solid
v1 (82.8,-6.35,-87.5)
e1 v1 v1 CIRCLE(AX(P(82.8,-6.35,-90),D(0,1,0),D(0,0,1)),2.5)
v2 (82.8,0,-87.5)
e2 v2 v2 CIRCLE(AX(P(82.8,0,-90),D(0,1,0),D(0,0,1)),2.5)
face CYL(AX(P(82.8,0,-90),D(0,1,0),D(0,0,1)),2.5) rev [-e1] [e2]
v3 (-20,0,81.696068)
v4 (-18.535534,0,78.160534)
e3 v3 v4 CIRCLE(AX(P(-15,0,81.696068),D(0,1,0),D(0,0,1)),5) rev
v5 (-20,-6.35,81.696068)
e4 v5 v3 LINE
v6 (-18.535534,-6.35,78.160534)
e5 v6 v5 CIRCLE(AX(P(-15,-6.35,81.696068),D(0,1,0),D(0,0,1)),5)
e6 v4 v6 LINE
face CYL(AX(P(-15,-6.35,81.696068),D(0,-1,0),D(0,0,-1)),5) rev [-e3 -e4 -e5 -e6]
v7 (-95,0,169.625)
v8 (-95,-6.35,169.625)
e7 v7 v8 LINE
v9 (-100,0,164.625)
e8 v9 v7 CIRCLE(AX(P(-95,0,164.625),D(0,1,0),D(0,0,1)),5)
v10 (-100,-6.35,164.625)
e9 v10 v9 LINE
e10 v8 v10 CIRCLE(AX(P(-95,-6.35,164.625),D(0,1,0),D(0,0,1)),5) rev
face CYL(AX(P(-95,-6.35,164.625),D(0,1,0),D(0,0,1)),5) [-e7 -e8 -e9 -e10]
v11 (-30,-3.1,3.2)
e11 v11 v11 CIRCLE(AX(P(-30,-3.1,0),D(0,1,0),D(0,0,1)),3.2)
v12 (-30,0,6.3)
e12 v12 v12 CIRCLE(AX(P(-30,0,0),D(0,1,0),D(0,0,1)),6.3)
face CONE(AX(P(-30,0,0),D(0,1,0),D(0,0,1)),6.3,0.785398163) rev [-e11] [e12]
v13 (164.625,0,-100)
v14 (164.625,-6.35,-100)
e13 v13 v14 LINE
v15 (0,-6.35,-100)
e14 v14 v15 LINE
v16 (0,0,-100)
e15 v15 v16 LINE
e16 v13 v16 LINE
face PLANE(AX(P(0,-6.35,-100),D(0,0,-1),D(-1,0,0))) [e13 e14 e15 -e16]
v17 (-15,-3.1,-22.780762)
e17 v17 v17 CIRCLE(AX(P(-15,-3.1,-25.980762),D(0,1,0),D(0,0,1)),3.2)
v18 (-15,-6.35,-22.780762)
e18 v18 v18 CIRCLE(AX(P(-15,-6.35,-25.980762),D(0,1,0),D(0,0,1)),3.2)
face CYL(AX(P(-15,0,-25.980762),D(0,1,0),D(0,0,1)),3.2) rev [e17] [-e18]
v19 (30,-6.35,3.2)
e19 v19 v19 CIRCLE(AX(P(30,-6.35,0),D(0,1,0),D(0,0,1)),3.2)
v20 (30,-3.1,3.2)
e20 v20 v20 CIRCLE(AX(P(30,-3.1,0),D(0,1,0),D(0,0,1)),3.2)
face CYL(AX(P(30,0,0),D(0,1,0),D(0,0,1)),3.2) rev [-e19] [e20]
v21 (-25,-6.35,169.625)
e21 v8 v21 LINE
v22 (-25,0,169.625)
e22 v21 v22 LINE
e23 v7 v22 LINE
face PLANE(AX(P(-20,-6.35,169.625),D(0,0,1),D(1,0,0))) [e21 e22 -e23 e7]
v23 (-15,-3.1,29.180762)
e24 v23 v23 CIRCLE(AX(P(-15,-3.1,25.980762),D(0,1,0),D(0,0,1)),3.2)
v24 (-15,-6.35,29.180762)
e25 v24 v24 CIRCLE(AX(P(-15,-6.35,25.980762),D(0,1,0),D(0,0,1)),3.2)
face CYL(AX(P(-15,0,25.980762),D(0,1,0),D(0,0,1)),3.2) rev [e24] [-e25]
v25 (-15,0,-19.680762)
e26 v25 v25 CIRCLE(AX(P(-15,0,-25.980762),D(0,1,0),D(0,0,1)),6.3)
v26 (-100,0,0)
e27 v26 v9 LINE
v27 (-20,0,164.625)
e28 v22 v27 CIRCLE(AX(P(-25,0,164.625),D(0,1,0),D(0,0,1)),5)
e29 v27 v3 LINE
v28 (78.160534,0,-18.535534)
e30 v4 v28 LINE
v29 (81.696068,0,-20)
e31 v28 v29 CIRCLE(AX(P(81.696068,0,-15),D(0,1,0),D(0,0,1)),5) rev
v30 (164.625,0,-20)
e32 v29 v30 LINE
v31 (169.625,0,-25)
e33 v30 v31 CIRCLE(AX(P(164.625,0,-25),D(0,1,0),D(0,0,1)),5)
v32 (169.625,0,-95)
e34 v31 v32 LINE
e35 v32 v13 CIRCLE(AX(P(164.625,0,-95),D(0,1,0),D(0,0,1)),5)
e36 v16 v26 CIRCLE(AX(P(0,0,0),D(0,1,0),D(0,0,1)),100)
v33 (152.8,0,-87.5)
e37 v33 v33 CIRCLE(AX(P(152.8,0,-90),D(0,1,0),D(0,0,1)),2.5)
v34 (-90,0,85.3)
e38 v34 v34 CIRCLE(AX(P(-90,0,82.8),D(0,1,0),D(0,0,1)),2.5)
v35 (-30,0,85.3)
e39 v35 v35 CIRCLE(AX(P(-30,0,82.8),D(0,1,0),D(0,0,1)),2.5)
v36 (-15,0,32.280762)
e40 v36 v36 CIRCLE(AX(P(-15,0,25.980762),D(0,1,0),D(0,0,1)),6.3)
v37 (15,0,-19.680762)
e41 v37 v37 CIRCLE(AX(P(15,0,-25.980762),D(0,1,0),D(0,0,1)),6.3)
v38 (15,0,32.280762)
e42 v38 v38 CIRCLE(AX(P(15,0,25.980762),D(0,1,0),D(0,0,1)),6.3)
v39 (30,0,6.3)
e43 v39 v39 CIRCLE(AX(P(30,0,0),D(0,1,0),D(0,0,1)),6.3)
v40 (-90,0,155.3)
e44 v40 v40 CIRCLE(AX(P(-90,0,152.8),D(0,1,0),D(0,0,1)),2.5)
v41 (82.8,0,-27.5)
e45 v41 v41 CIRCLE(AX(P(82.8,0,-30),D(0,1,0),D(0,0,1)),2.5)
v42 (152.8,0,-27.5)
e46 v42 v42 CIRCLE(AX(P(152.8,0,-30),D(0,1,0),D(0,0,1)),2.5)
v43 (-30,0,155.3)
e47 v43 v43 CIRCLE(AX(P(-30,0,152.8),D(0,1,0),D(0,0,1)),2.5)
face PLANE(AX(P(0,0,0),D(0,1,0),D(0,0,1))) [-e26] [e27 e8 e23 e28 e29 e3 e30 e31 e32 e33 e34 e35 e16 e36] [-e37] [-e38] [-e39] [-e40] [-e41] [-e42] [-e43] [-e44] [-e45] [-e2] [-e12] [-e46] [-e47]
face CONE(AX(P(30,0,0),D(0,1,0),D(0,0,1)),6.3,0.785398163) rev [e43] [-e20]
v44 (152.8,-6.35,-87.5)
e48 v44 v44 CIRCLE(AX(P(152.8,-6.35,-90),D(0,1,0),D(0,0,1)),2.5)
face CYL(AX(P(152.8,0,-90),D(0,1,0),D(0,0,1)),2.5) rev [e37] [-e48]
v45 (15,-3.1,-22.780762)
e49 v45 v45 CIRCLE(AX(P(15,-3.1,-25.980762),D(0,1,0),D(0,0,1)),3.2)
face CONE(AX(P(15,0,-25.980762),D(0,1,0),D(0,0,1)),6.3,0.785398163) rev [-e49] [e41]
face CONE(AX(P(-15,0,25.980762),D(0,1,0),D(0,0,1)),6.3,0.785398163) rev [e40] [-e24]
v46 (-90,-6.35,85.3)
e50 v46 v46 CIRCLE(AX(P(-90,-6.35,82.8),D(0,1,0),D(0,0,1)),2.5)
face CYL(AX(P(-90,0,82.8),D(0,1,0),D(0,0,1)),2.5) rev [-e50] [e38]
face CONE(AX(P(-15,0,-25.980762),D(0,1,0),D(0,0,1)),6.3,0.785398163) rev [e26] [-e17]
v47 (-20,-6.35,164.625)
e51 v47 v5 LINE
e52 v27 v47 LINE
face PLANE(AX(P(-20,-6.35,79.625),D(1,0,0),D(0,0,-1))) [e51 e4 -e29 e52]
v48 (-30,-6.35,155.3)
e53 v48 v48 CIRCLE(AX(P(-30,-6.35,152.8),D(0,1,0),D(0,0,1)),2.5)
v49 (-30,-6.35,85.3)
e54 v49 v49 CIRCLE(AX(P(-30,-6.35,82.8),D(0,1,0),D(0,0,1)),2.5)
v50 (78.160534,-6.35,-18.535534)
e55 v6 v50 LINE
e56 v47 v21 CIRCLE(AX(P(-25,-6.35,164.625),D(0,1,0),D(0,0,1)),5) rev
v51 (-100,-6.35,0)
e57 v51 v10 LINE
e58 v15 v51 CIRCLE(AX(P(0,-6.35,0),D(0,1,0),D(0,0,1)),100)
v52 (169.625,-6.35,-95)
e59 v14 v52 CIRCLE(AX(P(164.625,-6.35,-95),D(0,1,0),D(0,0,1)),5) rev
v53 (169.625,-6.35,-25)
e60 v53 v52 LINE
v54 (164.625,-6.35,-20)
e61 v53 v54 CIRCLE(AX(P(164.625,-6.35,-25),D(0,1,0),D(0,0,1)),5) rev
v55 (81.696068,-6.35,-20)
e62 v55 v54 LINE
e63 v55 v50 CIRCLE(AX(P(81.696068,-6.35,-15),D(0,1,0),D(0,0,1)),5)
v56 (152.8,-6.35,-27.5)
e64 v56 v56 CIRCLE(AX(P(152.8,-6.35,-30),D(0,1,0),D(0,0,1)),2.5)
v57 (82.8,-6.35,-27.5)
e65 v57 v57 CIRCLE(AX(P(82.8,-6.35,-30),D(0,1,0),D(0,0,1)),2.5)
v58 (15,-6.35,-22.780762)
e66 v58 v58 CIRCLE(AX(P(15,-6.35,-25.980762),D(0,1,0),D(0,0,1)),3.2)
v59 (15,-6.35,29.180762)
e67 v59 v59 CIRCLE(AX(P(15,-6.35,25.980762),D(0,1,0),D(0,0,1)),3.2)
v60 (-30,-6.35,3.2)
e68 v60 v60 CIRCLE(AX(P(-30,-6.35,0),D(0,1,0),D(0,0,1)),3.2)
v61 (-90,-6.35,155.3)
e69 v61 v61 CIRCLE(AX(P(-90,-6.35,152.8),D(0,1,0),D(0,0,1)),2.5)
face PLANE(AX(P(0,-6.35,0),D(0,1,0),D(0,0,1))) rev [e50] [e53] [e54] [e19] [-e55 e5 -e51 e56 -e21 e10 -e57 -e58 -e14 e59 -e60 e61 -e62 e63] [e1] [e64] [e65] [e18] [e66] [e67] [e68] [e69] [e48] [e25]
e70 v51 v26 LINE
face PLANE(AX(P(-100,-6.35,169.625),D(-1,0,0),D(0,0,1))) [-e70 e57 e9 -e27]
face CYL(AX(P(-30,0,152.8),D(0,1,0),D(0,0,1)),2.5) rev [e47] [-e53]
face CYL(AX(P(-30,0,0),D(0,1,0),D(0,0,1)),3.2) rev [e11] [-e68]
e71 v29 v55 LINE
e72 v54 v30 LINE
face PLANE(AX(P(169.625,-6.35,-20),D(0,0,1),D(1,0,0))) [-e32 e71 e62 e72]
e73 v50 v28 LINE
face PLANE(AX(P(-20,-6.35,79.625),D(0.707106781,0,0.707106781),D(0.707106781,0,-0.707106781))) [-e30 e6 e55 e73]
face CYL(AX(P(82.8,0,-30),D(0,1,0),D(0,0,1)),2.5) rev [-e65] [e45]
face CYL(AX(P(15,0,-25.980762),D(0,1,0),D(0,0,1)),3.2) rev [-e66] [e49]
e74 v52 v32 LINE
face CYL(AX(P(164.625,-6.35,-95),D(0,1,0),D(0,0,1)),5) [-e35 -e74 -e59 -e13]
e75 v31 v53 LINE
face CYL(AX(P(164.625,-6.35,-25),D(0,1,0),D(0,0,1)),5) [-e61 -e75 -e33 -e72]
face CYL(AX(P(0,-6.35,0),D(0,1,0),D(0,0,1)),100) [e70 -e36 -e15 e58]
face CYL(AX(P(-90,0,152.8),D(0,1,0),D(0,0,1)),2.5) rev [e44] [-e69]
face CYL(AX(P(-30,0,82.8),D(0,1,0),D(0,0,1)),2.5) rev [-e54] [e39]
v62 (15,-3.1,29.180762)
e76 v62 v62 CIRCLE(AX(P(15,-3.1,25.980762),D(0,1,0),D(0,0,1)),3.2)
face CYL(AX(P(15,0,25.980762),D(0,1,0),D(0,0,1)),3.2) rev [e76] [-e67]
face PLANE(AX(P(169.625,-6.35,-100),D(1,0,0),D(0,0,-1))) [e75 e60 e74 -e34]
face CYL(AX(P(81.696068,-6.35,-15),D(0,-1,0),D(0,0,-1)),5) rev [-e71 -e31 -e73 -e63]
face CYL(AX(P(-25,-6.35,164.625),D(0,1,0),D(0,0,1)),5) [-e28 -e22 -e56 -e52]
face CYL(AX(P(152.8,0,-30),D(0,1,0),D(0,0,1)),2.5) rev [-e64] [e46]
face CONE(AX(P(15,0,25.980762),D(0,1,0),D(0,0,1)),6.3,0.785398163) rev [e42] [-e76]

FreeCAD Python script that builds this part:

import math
import FreeCAD as App
import Part
import Sketcher
Q = App.Units.Quantity


def edges_at(feature, points):
    """Names of the edges that pass closest to the given points."""
    edges = feature.Shape.Edges
    near = lambda p: min(range(len(edges)), key=lambda i: edges[i].distToShape(Part.Vertex(*p))[0])
    return sorted({f"Edge{near(p) + 1}" for p in points})

doc = App.newDocument("Part")
params = doc.addObject("Spreadsheet::Sheet", "Params")
for row, (alias, value) in enumerate([
    ("sketch1_radius", "100 mm"),
    ("sketch1_width", "80 mm"),
    ("sketch1_width2", "90 mm"),
    ("pad1_length", "6.35 mm"),
    ("fillet_radius", "5 mm"),
    ("sketch2_diameter", "5 mm"),
    ("hole_diameter", "5 mm"),
    ("sketch3_diameter", "6.4 mm"),
    ("hole2_diameter", "6.4 mm"),
    ("hole2_csink_diameter", "12.6 mm"),
], start=1):
    params.set(f"A{row}", alias)
    params.set(f"B{row}", "=" + value)
    params.setAlias(f"B{row}", alias)

body = doc.addObject("PartDesign::Body", "Body")

sketch1 = body.newObject("Sketcher::SketchObject", "Sketch")
sketch1.AttachmentSupport = (doc.getObject("XZ_Plane"), [""])
sketch1.MapMode = "FlatFace"
sketch1.addGeometry([
    Part.LineSegment(App.Vector(170, -100, 0), App.Vector(0, -100, 0)),
    Part.ArcOfCircle(Part.Circle(App.Vector(0, 0, 0), App.Vector(0, 0, 1), 100), math.radians(180), math.radians(270)),
    Part.LineSegment(App.Vector(-100, 0, 0), App.Vector(-100, 170, 0)),
    Part.LineSegment(App.Vector(-100, 170, 0), App.Vector(-20, 170, 0)),
    Part.LineSegment(App.Vector(-20, 170, 0), App.Vector(-20, 80, 0)),
    Part.LineSegment(App.Vector(-20, 80, 0), App.Vector(80, -20, 0)),
    Part.LineSegment(App.Vector(80, -20, 0), App.Vector(170, -20, 0)),
    Part.LineSegment(App.Vector(170, -20, 0), App.Vector(170, -100, 0)),
], False)
sketch1.addConstraint([
    Sketcher.Constraint("Tangent", 0, 2, 1, 2),
    Sketcher.Constraint("Tangent", 1, 1, 2, 1),
    Sketcher.Constraint("Coincident", 2, 2, 3, 1),
    Sketcher.Constraint("Coincident", 3, 2, 4, 1),
    Sketcher.Constraint("Coincident", 4, 2, 5, 1),
    Sketcher.Constraint("Coincident", 5, 2, 6, 1),
    Sketcher.Constraint("Coincident", 6, 2, 7, 1),
    Sketcher.Constraint("Coincident", 7, 2, 0, 1),
    Sketcher.Constraint("Horizontal", 0),
    Sketcher.Constraint("Vertical", 2),
    Sketcher.Constraint("Horizontal", 3),
    Sketcher.Constraint("Vertical", 4),
    Sketcher.Constraint("Horizontal", 6),
    Sketcher.Constraint("Vertical", 7),
    Sketcher.Constraint("Coincident", 1, 3, -1, 1),
    Sketcher.Constraint("Equal", 0, 2),
    Sketcher.Constraint("Equal", 6, 4),
    Sketcher.Constraint("Equal", 3, 7),
    Sketcher.Constraint("Radius", 1, Q("100 mm")),
    Sketcher.Constraint("DistanceX", 3, 1, 3, 2, Q("80 mm")),
    Sketcher.Constraint("DistanceX", 6, 1, 6, 2, Q("90 mm")),
    Sketcher.Constraint("DistanceX", 0, 2, 0, 1, Q("169.625 mm")),
])
sketch1.setExpression("Constraints[18]", "Params.sketch1_radius")
sketch1.setExpression("Constraints[19]", "Params.sketch1_width")
sketch1.setExpression("Constraints[20]", "Params.sketch1_width2")
pad1 = body.newObject("PartDesign::Pad", "Pad")
pad1.Profile = sketch1
pad1.setExpression("Length", "Params.pad1_length")
doc.recompute()

fillet = body.newObject("PartDesign::Fillet", "Fillet")
fillet.Base = (pad1, edges_at(pad1, [
    (169.625, -3.175, -20),
    (79.625, -3.175, -20),
    (-20, -3.175, 79.625),
    (-20, -3.175, 169.625),
    (-100, -3.175, 169.625),
    (169.625, -3.175, -100),
]))
fillet.setExpression("Radius", "Params.fillet_radius")

sketch2 = body.newObject("Sketcher::SketchObject", "Sketch001")
sketch2.AttachmentSupport = (doc.getObject("XZ_Plane"), [""])
sketch2.MapMode = "FlatFace"
sketch2.addGeometry([
    Part.Circle(App.Vector(82.8, -90, 0), App.Vector(0, 0, 1), 2.5),
    Part.Circle(App.Vector(152.8, -90, 0), App.Vector(0, 0, 1), 2.5),
    Part.Circle(App.Vector(152.8, -30, 0), App.Vector(0, 0, 1), 2.5),
    Part.Circle(App.Vector(-90, 82.8, 0), App.Vector(0, 0, 1), 2.5),
    Part.Circle(App.Vector(-30, 82.8, 0), App.Vector(0, 0, 1), 2.5),
    Part.Circle(App.Vector(-30, 152.8, 0), App.Vector(0, 0, 1), 2.5),
    Part.Circle(App.Vector(-90, 152.8, 0), App.Vector(0, 0, 1), 2.5),
    Part.Circle(App.Vector(82.8, -30, 0), App.Vector(0, 0, 1), 2.5),
], False)
sketch2.addConstraint([
    Sketcher.Constraint("Equal", 0, 1),
    Sketcher.Constraint("Equal", 1, 2),
    Sketcher.Constraint("Equal", 2, 3),
    Sketcher.Constraint("Equal", 3, 4),
    Sketcher.Constraint("Equal", 4, 5),
    Sketcher.Constraint("Equal", 5, 6),
    Sketcher.Constraint("Equal", 6, 7),
    Sketcher.Constraint("Horizontal", 0, 3, 1, 3),
    Sketcher.Constraint("Horizontal", 3, 3, 4, 3),
    Sketcher.Constraint("Horizontal", 5, 3, 6, 3),
    Sketcher.Constraint("Horizontal", 2, 3, 7, 3),
    Sketcher.Constraint("Vertical", 1, 3, 2, 3),
    Sketcher.Constraint("Vertical", 4, 3, 5, 3),
    Sketcher.Constraint("Vertical", 3, 3, 6, 3),
    Sketcher.Constraint("Vertical", 0, 3, 7, 3),
    Sketcher.Constraint("Diameter", 0, Q("5 mm")),
    Sketcher.Constraint("DistanceY", 0, 3, -1, 1, Q("90 mm")),
    Sketcher.Constraint("DistanceY", 2, 3, -1, 1, Q("30 mm")),
    Sketcher.Constraint("DistanceX", 3, 3, -1, 1, Q("90 mm")),
    Sketcher.Constraint("DistanceX", 4, 3, -1, 1, Q("30 mm")),
    Sketcher.Constraint("DistanceX", 0, 3, 1, 3, Q("70 mm")),
    Sketcher.Constraint("DistanceY", 4, 3, 5, 3, Q("70 mm")),
    Sketcher.Constraint("DistanceX", -1, 1, 0, 3, Q("82.8 mm")),
    Sketcher.Constraint("DistanceY", -1, 1, 3, 3, Q("82.8 mm")),
])
sketch2.setExpression("Constraints[15]", "Params.sketch2_diameter")
doc.recompute()
hole = body.newObject("PartDesign::Hole", "Hole")
hole.Profile = sketch2
hole.ThreadType = "None"
hole.setExpression("Diameter", "Params.hole_diameter")
hole.DepthType = "ThroughAll"
hole.Reversed = True

sketch3 = body.newObject("Sketcher::SketchObject", "Sketch002")
sketch3.AttachmentSupport = (doc.getObject("XZ_Plane"), [""])
sketch3.MapMode = "FlatFace"
sketch3.addGeometry([
    Part.Circle(App.Vector(15, -26, 0), App.Vector(0, 0, 1), 3.2),
    Part.Circle(App.Vector(30, 0, 0), App.Vector(0, 0, 1), 3.2),
    Part.Circle(App.Vector(15, 26, 0), App.Vector(0, 0, 1), 3.2),
    Part.Circle(App.Vector(-15, 26, 0), App.Vector(0, 0, 1), 3.2),
    Part.Circle(App.Vector(-30, 0, 0), App.Vector(0, 0, 1), 3.2),
    Part.Circle(App.Vector(-15, -26, 0), App.Vector(0, 0, 1), 3.2),
], False)
sketch3.addConstraint([
    Sketcher.Constraint("Equal", 0, 1),
    Sketcher.Constraint("Equal", 1, 2),
    Sketcher.Constraint("Equal", 2, 3),
    Sketcher.Constraint("Equal", 3, 4),
    Sketcher.Constraint("Equal", 4, 5),
    Sketcher.Constraint("Symmetric", 0, 3, 3, 3, -1, 1),
    Sketcher.Constraint("Symmetric", 1, 3, 4, 3, -1, 1),
    Sketcher.Constraint("Symmetric", 2, 3, 5, 3, -1, 1),
    Sketcher.Constraint("Symmetric", 2, 3, 3, 3, -2),
    Sketcher.Constraint("PointOnObject", 1, 3, -1),
    Sketcher.Constraint("Diameter", 0, Q("6.4 mm")),
    Sketcher.Constraint("DistanceX", -1, 1, 0, 3, Q("15 mm")),
    Sketcher.Constraint("DistanceX", -1, 1, 1, 3, Q("30 mm")),
    Sketcher.Constraint("DistanceY", 0, 3, -1, 1, Q("25.980762 mm")),
])
sketch3.setExpression("Constraints[10]", "Params.sketch3_diameter")
doc.recompute()
hole2 = body.newObject("PartDesign::Hole", "Hole001")
hole2.Profile = sketch3
hole2.ThreadType = "None"
hole2.setExpression("Diameter", "Params.hole2_diameter")
hole2.DepthType = "ThroughAll"
hole2.HoleCutType = "Countersink"
hole2.setExpression("HoleCutDiameter", "Params.hole2_csink_diameter")
hole2.HoleCutCountersinkAngle = 90
hole2.Reversed = True

doc.recompute()
